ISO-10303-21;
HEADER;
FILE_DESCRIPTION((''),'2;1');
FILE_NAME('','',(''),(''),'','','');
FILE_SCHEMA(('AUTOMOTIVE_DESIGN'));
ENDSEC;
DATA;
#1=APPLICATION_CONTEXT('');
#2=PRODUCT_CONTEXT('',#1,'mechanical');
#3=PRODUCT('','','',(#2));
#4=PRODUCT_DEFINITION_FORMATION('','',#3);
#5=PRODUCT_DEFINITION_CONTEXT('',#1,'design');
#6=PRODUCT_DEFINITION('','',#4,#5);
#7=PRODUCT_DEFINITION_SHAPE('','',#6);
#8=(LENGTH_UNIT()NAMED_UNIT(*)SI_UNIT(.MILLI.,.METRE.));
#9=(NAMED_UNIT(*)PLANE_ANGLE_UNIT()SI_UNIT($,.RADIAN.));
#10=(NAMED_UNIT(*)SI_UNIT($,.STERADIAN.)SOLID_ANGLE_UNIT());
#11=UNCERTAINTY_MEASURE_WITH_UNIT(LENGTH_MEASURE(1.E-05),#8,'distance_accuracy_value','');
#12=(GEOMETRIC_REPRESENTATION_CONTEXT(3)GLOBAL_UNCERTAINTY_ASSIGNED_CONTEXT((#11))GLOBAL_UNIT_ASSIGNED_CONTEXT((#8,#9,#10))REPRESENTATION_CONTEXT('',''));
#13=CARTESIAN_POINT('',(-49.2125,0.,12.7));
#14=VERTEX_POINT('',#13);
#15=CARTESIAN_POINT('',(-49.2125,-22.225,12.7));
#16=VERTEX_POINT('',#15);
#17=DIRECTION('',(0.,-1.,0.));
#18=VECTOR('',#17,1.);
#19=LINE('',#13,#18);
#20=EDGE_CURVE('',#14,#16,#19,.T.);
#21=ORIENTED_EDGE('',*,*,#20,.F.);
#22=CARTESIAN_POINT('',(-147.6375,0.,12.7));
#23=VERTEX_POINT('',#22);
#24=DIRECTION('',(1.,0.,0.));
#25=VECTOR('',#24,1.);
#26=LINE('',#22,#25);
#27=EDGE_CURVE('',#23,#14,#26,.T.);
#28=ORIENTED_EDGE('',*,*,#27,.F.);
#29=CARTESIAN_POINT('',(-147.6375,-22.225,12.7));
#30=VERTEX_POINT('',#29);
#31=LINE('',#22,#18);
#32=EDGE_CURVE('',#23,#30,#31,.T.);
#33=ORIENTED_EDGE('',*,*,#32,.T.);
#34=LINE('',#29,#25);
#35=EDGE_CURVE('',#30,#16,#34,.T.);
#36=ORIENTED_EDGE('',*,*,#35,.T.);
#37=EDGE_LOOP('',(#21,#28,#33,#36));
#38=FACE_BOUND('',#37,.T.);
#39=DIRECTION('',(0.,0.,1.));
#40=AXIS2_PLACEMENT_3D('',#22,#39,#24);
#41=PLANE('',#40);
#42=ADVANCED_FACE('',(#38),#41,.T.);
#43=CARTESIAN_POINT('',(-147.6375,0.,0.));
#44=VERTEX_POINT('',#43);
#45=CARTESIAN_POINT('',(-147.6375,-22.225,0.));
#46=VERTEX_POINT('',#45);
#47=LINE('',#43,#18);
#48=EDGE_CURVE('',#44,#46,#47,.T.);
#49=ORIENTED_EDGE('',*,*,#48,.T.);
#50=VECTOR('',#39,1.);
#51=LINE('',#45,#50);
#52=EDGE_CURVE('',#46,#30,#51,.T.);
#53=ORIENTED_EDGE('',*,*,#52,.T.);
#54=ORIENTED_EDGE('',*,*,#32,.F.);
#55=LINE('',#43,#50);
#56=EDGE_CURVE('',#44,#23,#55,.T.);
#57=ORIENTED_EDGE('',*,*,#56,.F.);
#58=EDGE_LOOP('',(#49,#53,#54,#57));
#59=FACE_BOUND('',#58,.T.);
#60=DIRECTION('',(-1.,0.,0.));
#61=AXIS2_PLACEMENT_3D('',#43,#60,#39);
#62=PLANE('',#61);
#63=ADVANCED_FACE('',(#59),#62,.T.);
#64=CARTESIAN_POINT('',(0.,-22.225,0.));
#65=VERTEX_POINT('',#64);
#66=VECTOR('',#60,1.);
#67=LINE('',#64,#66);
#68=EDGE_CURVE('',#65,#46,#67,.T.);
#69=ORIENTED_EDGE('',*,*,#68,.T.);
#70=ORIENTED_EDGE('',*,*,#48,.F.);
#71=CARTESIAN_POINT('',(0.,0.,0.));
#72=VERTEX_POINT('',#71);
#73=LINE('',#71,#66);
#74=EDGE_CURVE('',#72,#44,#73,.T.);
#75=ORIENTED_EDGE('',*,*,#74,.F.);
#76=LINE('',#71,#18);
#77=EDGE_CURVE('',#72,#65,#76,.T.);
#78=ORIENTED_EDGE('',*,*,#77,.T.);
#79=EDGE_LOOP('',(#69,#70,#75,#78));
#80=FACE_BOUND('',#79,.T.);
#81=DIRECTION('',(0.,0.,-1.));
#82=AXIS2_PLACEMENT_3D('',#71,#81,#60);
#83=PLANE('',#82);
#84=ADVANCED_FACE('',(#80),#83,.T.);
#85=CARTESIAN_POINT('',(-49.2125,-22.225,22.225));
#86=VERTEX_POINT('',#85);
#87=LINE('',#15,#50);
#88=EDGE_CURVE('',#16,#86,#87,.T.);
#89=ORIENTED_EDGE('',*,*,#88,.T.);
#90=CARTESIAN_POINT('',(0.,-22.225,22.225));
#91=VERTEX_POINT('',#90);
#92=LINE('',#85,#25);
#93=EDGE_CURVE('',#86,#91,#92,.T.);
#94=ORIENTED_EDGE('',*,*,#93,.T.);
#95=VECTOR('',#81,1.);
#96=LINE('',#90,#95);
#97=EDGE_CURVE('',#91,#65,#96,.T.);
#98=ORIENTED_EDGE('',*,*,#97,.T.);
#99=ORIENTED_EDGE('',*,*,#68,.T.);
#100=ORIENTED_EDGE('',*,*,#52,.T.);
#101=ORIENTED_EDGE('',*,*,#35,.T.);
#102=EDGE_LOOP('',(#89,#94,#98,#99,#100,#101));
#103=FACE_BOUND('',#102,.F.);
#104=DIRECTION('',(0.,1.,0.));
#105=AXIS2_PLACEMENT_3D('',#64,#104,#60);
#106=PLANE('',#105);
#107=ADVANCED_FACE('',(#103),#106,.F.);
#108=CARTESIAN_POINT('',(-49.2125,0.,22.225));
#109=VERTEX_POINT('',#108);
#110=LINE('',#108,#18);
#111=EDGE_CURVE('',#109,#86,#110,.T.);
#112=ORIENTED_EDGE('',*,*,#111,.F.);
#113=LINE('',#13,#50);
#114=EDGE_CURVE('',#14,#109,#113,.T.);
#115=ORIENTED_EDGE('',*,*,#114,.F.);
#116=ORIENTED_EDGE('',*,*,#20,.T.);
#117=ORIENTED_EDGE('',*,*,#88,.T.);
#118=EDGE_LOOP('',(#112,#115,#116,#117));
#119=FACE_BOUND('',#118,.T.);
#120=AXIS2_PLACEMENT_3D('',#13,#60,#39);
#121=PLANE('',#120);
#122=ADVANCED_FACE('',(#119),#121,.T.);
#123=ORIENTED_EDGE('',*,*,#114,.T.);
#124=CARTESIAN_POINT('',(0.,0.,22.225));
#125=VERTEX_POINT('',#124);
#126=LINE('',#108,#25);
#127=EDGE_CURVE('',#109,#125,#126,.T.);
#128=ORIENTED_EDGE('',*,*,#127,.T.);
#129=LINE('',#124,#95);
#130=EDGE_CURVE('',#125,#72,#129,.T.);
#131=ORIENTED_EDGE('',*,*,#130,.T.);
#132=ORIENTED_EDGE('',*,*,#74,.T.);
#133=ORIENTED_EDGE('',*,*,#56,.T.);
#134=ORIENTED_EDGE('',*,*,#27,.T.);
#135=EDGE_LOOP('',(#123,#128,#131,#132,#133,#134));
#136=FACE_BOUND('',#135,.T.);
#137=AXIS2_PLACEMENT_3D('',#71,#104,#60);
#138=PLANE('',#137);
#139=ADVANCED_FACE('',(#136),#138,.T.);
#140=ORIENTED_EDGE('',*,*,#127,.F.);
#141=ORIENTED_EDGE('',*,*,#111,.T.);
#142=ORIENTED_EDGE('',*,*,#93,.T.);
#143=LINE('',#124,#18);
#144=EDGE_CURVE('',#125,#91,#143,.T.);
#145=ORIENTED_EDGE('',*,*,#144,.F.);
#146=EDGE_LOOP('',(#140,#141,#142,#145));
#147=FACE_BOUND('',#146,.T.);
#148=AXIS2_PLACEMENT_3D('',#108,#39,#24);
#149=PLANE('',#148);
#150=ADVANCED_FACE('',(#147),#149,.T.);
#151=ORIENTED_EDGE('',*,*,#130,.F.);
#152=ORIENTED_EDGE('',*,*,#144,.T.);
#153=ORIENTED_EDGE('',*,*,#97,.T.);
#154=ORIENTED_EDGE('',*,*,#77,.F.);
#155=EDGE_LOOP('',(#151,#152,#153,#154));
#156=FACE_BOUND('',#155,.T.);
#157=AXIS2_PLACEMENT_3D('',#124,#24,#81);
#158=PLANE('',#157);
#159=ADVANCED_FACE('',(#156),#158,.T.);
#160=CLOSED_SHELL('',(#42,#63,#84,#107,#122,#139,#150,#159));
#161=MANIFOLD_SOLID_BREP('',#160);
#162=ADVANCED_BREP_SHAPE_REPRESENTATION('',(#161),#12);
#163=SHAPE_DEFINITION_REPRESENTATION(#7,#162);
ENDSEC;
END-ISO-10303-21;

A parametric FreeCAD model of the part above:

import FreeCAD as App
import Part
import Sketcher
Q = App.Units.Quantity


def add_polygon(sketch, points):
    """Adds a closed chain of lines whose ends are joined by coincident constraints."""
    first, n = sketch.GeometryCount, len(points)
    for a, b in zip(points, points[1:] + points[:1]):
        sketch.addGeometry(Part.LineSegment(App.Vector(*a, 0), App.Vector(*b, 0)), False)
    for i in range(n):
        sketch.addConstraint(Sketcher.Constraint("Coincident", first + i, 2, first + (i + 1) % n, 1))

doc = App.newDocument("Part")
body = doc.addObject("PartDesign::Body", "Body")

sketch1 = body.newObject("Sketcher::SketchObject", "Sketch")
sketch1.AttachmentSupport = (doc.getObject("XZ_Plane"), [""])
sketch1.MapMode = "FlatFace"
add_polygon(sketch1, [(0, 22.225), (0, 0), (-147.6375, 0), (-147.6375, 12.7), (-49.2125, 12.7), (-49.2125, 22.225)])
sketch1.addConstraint([
    Sketcher.Constraint("Vertical", 0),
    Sketcher.Constraint("Horizontal", 1),
    Sketcher.Constraint("Vertical", 2),
    Sketcher.Constraint("Horizontal", 3),
    Sketcher.Constraint("Vertical", 4),
    Sketcher.Constraint("Horizontal", 5),
    Sketcher.Constraint("Coincident", 0, 2, -1, 1),
    Sketcher.Constraint("DistanceY", 2, 1, 2, 2, Q("0.5 in")),
    Sketcher.Constraint("DistanceX", 1, 2, 1, 1, Q("5.8125 in")),
    Sketcher.Constraint("DistanceX", 3, 1, 3, 2, Q("3.875 in")),
    Sketcher.Constraint("DistanceY", 0, 2, 0, 1, Q("0.875 in")),
])
pad1 = body.newObject("PartDesign::Pad", "Pad")
pad1.Profile = sketch1
pad1.Length = Q("0.875 in")

doc.recompute()
